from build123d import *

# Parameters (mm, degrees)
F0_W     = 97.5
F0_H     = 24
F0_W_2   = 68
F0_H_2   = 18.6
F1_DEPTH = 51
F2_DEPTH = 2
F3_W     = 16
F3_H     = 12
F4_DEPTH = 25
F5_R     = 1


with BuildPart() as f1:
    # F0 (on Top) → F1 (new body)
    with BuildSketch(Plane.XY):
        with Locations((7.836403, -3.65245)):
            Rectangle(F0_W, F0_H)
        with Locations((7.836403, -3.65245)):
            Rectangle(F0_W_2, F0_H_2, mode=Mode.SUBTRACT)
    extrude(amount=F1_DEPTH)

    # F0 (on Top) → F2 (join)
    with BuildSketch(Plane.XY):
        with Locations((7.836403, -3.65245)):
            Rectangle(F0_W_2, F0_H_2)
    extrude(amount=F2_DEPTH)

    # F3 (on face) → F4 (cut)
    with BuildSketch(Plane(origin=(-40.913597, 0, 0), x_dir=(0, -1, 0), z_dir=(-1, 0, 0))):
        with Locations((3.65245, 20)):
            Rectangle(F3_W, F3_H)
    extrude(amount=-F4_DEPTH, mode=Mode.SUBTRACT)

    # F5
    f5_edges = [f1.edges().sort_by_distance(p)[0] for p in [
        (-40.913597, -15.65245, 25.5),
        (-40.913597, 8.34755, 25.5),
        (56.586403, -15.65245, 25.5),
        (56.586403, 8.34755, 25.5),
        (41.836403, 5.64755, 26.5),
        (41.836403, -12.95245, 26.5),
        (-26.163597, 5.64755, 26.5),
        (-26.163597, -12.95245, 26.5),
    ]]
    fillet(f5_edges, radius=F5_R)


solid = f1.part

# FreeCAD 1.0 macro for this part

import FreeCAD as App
import Part
import Sketcher
Q = App.Units.Quantity


def edges_at(feature, points):
    """Names of the edges that pass closest to the given points."""
    edges = feature.Shape.Edges
    near = lambda p: min(range(len(edges)), key=lambda i: edges[i].distToShape(Part.Vertex(*p))[0])
    return sorted({f"Edge{near(p) + 1}" for p in points})


def add_polygon(sketch, points):
    """Adds a closed chain of lines whose ends are joined by coincident constraints."""
    first, n = sketch.GeometryCount, len(points)
    for a, b in zip(points, points[1:] + points[:1]):
        sketch.addGeometry(Part.LineSegment(App.Vector(*a, 0), App.Vector(*b, 0)), False)
    for i in range(n):
        sketch.addConstraint(Sketcher.Constraint("Coincident", first + i, 2, first + (i + 1) % n, 1))

doc = App.newDocument("Part")
body = doc.addObject("PartDesign::Body", "Body")

# Sketch on XY plane
sketch1 = doc.addObject("Sketcher::SketchObject", "Sketch")
body.addObject(sketch1)
sketch1.AttachmentSupport = (doc.XY_Plane, [""])
sketch1.MapMode = "FlatFace"
add_polygon(sketch1, [(-40.913597, 8.34755), (-40.913597, -15.65245), (56.586403, -15.65245), (56.586403, 8.34755)])  # lines 0-3
add_polygon(sketch1, [(41.836403, -12.95245), (-26.163597, -12.95245), (-26.163597, 5.64755), (41.836403, 5.64755)])  # lines 4-7
sketch1.addConstraint(Sketcher.Constraint("Vertical", 0))
sketch1.addConstraint(Sketcher.Constraint("Horizontal", 1))
sketch1.addConstraint(Sketcher.Constraint("Vertical", 2))
sketch1.addConstraint(Sketcher.Constraint("Horizontal", 3))
sketch1.addConstraint(Sketcher.Constraint("Horizontal", 4))
sketch1.addConstraint(Sketcher.Constraint("Vertical", 5))
sketch1.addConstraint(Sketcher.Constraint("Horizontal", 6))
sketch1.addConstraint(Sketcher.Constraint("Vertical", 7))
sketch1.addConstraint(Sketcher.Constraint("DistanceX", 4, 2, 4, 1, Q("68 mm")))
sketch1.addConstraint(Sketcher.Constraint("DistanceY", 0, 2, 0, 1, Q("24 mm")))
sketch1.addConstraint(Sketcher.Constraint("DistanceX", 1, 1, 1, 2, Q("97.5 mm")))
sketch1.addConstraint(Sketcher.Constraint("DistanceY", 5, 1, 5, 2, Q("18.6 mm")))
sketch1.addConstraint(Sketcher.Constraint("DistanceY", 0, 2, 4, 2, Q("2.7 mm")))
sketch1.addConstraint(Sketcher.Constraint("DistanceX", 0, 2, 4, 2, Q("14.75 mm")))
sketch1.addConstraint(Sketcher.Constraint("DistanceY", 0, 2, -1, 1, Q("15.65245 mm")))
sketch1.addConstraint(Sketcher.Constraint("DistanceX", 0, 2, -1, 1, Q("40.913597 mm")))
pad1 = doc.addObject("PartDesign::Pad", "Pad")
body.addObject(pad1)
pad1.Profile = sketch1
pad1.Length = 51

# Sketch on XY plane
sketch2 = doc.addObject("Sketcher::SketchObject", "Sketch001")
body.addObject(sketch2)
sketch2.AttachmentSupport = (doc.XY_Plane, [""])
sketch2.MapMode = "FlatFace"
add_polygon(sketch2, [(-26.163597, 5.64755), (-26.163597, -12.95245), (41.836403, -12.95245), (41.836403, 5.64755)])  # lines 0-3
sketch2.addConstraint(Sketcher.Constraint("Vertical", 0))
sketch2.addConstraint(Sketcher.Constraint("Horizontal", 1))
sketch2.addConstraint(Sketcher.Constraint("Vertical", 2))
sketch2.addConstraint(Sketcher.Constraint("Horizontal", 3))
sketch2.addConstraint(Sketcher.Constraint("DistanceX", 1, 1, 1, 2, Q("68 mm")))
sketch2.addConstraint(Sketcher.Constraint("DistanceY", 0, 2, 0, 1, Q("18.6 mm")))
sketch2.addConstraint(Sketcher.Constraint("DistanceY", 0, 2, -1, 1, Q("12.95245 mm")))
sketch2.addConstraint(Sketcher.Constraint("DistanceX", 0, 2, -1, 1, Q("26.163597 mm")))
pad2 = doc.addObject("PartDesign::Pad", "Pad001")
body.addObject(pad2)
pad2.Profile = sketch2
pad2.Length = 2

# Sketch on YZ plane
sketch3 = doc.addObject("Sketcher::SketchObject", "Sketch002")
body.addObject(sketch3)
sketch3.AttachmentSupport = (doc.YZ_Plane, [""])
sketch3.MapMode = "FlatFace"
sketch3.AttachmentOffset = App.Placement(App.Vector(0, 0, -40.913597), App.Rotation())
add_polygon(sketch3, [(4.34755, 26), (4.34755, 14), (-11.65245, 14), (-11.65245, 26)])  # lines 0-3
sketch3.addConstraint(Sketcher.Constraint("Vertical", 0))
sketch3.addConstraint(Sketcher.Constraint("Horizontal", 1))
sketch3.addConstraint(Sketcher.Constraint("Vertical", 2))
sketch3.addConstraint(Sketcher.Constraint("Horizontal", 3))
sketch3.addConstraint(Sketcher.Constraint("DistanceX", 1, 2, 1, 1, Q("16 mm")))
sketch3.addConstraint(Sketcher.Constraint("DistanceY", 0, 2, 0, 1, Q("12 mm")))
sketch3.addConstraint(Sketcher.Constraint("DistanceY", -1, 1, 0, 2, Q("14 mm")))
sketch3.addConstraint(Sketcher.Constraint("DistanceX", -1, 1, 0, 2, Q("4.34755 mm")))
pocket1 = doc.addObject("PartDesign::Pocket", "Pocket")
body.addObject(pocket1)
pocket1.Profile = sketch3
pocket1.Length = 25
pocket1.Reversed = True
doc.recompute()

fillet = doc.addObject("PartDesign::Fillet", "Fillet")
body.addObject(fillet)
fillet.Base = (pocket1, edges_at(pocket1, [
    (-40.914, -15.652, 25.5),
    (-40.914, 8.348, 25.5),
    (56.586, -15.652, 25.5),
    (56.586, 8.348, 25.5),
    (41.836, 5.648, 26.5),
    (41.836, -12.952, 26.5),
    (-26.164, 5.648, 26.5),
    (-26.164, -12.952, 26.5),
]))
fillet.Radius = 1

doc.recompute()
